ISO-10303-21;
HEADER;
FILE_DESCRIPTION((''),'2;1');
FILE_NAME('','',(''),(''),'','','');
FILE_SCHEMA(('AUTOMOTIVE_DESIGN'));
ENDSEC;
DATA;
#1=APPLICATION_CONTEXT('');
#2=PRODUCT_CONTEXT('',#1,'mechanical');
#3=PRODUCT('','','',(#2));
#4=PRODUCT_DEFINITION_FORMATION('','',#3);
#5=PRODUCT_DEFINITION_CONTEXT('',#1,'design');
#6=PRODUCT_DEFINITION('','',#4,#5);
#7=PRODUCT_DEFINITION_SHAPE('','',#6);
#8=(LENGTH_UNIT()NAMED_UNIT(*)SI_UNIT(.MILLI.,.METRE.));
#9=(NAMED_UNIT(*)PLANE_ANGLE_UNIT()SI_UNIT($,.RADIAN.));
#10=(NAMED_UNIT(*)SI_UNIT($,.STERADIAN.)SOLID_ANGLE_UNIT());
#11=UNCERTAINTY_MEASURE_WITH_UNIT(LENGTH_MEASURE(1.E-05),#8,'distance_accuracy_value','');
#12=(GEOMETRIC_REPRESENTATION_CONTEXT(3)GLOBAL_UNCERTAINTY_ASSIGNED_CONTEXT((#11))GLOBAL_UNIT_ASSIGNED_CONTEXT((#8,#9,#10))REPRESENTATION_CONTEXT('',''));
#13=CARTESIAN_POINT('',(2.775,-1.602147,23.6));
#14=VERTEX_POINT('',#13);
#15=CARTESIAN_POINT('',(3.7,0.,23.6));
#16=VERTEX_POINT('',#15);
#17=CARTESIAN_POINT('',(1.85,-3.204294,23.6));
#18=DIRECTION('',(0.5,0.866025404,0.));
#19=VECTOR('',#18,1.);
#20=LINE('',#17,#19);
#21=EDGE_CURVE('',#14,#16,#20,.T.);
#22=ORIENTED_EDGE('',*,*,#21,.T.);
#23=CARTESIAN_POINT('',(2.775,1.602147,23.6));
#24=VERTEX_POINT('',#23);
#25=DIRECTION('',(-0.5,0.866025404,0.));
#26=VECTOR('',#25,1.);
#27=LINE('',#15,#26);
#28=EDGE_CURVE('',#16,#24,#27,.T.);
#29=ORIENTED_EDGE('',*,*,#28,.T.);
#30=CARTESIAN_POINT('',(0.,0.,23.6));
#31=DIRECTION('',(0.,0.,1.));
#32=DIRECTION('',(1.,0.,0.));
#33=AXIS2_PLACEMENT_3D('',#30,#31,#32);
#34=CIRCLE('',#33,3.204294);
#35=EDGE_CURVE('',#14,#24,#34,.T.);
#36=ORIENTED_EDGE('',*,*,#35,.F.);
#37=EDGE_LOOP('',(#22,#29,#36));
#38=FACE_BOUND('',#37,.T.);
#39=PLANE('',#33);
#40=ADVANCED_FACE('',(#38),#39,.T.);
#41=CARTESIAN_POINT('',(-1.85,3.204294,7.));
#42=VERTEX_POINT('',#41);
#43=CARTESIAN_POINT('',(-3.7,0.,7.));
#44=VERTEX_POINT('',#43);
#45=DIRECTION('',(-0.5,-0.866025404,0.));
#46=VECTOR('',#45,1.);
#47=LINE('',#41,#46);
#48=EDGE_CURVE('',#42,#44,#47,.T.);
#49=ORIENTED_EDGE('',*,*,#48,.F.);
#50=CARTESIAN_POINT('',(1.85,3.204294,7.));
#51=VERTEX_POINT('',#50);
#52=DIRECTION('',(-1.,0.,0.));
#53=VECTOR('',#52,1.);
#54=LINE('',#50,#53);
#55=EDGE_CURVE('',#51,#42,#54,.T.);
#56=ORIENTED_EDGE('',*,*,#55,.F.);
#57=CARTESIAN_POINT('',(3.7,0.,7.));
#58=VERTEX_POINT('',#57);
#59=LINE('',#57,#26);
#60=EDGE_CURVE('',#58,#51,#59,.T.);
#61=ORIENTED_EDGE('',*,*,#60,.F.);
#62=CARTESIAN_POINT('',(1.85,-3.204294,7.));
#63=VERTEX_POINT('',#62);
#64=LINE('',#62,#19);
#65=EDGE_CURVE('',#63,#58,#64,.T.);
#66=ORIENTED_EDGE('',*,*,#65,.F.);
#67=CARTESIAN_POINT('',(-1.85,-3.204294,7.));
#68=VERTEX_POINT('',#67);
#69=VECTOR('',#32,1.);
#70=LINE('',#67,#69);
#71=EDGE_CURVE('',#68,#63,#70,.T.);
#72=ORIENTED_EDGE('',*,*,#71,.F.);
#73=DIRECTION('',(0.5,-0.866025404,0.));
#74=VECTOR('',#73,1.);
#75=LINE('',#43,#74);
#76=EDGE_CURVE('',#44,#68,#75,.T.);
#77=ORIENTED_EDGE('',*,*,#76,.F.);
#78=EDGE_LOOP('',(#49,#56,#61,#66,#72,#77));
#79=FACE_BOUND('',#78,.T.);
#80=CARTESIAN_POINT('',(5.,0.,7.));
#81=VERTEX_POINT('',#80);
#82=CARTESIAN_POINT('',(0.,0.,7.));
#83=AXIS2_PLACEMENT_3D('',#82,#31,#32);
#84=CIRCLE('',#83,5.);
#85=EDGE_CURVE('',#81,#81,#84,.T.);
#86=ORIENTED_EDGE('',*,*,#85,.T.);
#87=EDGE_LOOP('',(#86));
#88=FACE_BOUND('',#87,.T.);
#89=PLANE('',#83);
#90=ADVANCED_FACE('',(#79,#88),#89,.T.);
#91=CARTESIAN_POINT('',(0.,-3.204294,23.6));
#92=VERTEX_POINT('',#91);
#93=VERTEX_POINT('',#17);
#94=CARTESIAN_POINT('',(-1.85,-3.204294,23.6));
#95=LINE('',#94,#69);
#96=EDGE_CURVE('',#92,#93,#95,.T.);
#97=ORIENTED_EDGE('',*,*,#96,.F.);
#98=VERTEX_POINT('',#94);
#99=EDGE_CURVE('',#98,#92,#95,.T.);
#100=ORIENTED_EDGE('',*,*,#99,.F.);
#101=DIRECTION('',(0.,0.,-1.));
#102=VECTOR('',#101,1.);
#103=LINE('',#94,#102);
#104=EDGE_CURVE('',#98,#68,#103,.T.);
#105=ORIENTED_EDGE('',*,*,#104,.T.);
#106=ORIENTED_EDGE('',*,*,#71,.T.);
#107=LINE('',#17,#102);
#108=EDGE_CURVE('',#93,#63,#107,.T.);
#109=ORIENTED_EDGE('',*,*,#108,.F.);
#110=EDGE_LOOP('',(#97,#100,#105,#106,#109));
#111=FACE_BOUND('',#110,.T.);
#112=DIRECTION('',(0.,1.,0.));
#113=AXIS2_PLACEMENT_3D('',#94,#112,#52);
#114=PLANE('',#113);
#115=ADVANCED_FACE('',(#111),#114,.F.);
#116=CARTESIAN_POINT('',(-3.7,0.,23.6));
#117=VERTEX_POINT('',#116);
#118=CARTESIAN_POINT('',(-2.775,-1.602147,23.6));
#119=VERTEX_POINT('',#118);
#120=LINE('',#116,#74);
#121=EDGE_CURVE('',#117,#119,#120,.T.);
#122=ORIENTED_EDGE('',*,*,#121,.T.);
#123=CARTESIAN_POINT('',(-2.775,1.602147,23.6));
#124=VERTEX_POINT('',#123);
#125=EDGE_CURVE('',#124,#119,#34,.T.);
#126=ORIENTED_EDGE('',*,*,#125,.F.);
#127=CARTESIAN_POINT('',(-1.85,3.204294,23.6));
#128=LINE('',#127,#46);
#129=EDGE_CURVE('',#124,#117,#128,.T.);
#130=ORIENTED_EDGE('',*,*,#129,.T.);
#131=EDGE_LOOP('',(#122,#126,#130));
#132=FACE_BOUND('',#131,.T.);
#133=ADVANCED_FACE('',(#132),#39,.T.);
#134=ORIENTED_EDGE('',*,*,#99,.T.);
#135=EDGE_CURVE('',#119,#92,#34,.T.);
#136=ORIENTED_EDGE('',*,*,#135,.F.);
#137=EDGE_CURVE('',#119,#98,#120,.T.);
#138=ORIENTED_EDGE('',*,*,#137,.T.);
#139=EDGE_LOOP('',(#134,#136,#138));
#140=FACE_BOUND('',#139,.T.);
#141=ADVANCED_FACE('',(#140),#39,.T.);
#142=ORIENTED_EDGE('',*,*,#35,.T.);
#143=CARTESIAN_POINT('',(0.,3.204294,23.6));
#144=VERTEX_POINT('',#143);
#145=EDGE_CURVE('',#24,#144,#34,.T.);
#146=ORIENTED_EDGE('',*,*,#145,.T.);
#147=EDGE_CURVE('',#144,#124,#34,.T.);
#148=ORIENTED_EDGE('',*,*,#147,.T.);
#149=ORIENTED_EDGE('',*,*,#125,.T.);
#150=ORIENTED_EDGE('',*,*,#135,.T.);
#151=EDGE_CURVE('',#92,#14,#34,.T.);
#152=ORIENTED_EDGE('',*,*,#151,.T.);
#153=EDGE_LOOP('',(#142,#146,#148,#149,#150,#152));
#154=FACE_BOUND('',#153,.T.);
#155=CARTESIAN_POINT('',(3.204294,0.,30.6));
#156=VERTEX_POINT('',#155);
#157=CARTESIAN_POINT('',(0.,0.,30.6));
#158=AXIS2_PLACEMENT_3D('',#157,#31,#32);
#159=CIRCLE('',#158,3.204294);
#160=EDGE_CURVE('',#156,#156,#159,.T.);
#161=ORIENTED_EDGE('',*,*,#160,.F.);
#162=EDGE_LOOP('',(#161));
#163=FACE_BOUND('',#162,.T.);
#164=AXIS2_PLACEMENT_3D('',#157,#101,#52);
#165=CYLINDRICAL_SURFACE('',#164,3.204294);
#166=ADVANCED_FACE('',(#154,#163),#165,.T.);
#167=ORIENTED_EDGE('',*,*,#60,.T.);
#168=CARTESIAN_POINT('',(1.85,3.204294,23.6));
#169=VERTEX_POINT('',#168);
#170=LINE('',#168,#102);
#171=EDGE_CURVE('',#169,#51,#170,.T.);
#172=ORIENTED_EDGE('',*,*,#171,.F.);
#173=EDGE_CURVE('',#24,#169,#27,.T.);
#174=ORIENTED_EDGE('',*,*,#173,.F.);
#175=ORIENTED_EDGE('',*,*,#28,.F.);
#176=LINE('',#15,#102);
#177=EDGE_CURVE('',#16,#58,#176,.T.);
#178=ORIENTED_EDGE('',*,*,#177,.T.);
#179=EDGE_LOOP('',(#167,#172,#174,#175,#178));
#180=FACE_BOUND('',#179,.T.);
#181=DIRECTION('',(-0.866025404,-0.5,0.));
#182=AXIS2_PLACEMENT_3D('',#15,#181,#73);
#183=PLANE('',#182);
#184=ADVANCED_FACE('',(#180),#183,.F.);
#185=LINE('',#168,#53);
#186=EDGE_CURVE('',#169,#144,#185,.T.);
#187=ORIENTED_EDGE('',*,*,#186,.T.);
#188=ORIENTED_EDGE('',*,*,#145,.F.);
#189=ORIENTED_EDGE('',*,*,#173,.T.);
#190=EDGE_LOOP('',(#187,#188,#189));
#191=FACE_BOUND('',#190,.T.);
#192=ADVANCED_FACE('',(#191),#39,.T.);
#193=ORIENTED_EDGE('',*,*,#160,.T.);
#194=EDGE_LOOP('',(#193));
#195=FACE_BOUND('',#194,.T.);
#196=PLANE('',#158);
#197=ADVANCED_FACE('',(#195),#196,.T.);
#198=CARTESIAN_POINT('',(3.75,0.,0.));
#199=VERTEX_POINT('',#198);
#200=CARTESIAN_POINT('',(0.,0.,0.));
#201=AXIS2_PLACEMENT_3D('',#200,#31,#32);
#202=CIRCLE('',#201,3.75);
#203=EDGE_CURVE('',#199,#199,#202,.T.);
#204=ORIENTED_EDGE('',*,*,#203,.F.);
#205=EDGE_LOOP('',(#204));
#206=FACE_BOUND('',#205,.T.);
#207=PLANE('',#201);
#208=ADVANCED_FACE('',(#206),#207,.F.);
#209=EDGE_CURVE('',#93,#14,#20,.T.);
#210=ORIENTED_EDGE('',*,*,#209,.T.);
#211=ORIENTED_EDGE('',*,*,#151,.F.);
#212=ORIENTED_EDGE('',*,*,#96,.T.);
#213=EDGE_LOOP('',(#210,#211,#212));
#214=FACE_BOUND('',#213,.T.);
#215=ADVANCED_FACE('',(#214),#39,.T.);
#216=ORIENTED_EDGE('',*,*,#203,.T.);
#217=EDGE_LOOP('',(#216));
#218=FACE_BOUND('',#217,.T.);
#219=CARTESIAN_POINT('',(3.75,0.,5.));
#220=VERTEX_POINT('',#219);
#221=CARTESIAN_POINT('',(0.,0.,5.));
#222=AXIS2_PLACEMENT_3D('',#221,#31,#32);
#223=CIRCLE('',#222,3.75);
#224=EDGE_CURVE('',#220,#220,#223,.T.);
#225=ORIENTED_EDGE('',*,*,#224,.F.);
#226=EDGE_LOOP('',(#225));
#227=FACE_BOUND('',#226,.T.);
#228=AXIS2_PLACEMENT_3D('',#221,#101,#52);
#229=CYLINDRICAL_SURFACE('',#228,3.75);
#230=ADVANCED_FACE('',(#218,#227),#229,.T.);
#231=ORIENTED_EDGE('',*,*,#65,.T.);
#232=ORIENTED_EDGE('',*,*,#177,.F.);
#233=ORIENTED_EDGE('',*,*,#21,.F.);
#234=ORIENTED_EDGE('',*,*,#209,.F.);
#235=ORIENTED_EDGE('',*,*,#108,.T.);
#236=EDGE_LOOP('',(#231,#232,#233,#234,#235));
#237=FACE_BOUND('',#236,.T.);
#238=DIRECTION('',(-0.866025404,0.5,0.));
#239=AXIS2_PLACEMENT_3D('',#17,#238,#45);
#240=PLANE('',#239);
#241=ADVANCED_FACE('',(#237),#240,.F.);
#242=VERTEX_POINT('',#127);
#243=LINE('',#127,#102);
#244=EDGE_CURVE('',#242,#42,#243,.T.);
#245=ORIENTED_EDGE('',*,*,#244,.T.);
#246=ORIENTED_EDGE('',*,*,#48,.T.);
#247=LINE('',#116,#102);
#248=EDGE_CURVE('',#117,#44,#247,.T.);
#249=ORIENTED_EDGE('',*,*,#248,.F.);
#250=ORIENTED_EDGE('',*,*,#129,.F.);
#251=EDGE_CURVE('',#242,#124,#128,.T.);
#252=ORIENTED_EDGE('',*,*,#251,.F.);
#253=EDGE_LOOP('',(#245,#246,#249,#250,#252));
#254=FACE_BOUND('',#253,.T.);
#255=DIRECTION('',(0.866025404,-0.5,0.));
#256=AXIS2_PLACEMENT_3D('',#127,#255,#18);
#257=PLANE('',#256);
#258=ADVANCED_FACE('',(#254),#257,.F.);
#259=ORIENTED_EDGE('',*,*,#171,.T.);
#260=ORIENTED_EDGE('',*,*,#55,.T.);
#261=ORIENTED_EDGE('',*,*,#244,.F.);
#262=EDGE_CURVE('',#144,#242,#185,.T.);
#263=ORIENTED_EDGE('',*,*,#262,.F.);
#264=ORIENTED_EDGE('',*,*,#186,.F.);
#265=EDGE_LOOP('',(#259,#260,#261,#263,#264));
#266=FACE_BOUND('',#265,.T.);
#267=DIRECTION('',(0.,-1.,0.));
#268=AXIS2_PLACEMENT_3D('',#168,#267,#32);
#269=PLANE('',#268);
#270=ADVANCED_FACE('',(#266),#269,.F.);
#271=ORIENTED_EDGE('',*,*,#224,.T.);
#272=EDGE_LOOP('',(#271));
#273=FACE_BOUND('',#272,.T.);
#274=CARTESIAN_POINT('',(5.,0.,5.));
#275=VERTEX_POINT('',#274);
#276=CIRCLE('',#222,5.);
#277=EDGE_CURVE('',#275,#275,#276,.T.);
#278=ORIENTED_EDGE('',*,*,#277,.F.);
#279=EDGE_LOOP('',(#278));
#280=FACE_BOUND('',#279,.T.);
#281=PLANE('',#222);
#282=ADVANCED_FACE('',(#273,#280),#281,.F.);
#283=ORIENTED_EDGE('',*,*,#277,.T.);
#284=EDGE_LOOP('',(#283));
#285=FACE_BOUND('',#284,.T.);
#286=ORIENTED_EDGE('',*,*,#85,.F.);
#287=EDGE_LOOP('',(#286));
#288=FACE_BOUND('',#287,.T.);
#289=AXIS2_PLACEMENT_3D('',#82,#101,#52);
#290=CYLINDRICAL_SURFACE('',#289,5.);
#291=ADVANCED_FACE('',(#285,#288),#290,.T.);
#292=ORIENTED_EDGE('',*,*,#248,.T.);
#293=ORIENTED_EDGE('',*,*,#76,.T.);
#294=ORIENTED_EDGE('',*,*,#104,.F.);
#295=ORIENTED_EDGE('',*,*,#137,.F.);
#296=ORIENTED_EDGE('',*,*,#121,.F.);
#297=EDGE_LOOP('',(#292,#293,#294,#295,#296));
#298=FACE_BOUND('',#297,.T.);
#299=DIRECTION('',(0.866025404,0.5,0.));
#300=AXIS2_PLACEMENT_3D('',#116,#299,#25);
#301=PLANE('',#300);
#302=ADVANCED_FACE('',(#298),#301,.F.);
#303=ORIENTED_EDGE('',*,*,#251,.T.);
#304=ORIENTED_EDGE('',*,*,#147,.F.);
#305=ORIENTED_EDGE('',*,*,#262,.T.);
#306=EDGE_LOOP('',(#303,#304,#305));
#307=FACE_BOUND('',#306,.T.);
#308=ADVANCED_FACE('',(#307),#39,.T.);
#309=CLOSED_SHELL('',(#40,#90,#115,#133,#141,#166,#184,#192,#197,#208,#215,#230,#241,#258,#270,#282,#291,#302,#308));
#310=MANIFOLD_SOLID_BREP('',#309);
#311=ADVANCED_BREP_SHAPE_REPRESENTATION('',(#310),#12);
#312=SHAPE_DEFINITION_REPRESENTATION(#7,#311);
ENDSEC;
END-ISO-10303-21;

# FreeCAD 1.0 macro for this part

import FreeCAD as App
import Part
import Sketcher

V = App.Vector
Q = App.Units.Quantity


def add_polygon(sketch, points):
    """Adds a closed chain of lines whose ends are joined by coincident constraints."""
    first, n = sketch.GeometryCount, len(points)
    for a, b in zip(points, points[1:] + points[:1]):
        sketch.addGeometry(Part.LineSegment(App.Vector(*a, 0), App.Vector(*b, 0)), False)
    for i in range(n):
        sketch.addConstraint(Sketcher.Constraint("Coincident", first + i, 2, first + (i + 1) % n, 1))

doc = App.newDocument("Part")
body = doc.addObject("PartDesign::Body", "Body")

# Sketch on XY plane
sketch1 = doc.addObject("Sketcher::SketchObject", "Sketch")
body.addObject(sketch1)
sketch1.AttachmentSupport = (doc.XY_Plane, [""])
sketch1.MapMode = "FlatFace"
sketch1.addGeometry(Part.Circle(V(0, 0, 0), V(0, 0, 1), 3.8), False)
sketch1.addConstraint(Sketcher.Constraint("Coincident", 0, 3, -1, 1))
sketch1.addConstraint(Sketcher.Constraint("Diameter", 0, Q("7.5 mm")))
pad1 = doc.addObject("PartDesign::Pad", "Pad")
body.addObject(pad1)
pad1.Profile = sketch1
pad1.Length = 5

# Sketch on XY plane
sketch2 = doc.addObject("Sketcher::SketchObject", "Sketch001")
body.addObject(sketch2)
sketch2.AttachmentSupport = (doc.XY_Plane, [""])
sketch2.MapMode = "FlatFace"
sketch2.AttachmentOffset = App.Placement(V(0, 0, 5), App.Rotation())
sketch2.addGeometry(Part.Circle(V(0, 0, 0), V(0, 0, 1), 5), False)
sketch2.addConstraint(Sketcher.Constraint("Coincident", 0, 3, -1, 1))
sketch2.addConstraint(Sketcher.Constraint("Diameter", 0, Q("10 mm")))
pad2 = doc.addObject("PartDesign::Pad", "Pad001")
body.addObject(pad2)
pad2.Profile = sketch2
pad2.Length = 2

# Sketch on XY plane
sketch3 = doc.addObject("Sketcher::SketchObject", "Sketch002")
body.addObject(sketch3)
sketch3.AttachmentSupport = (doc.XY_Plane, [""])
sketch3.MapMode = "FlatFace"
sketch3.AttachmentOffset = App.Placement(V(0, 0, 7), App.Rotation())
add_polygon(sketch3, [(3.7, 0), (1.9, 3.2), (-1.9, 3.2), (-3.7, 0), (-1.9, -3.2), (1.9, -3.2)])  # lines 0-5
sketch3.addConstraint(Sketcher.Constraint("Horizontal", 1))
sketch3.addConstraint(Sketcher.Constraint("Horizontal", 4))
sketch3.addConstraint(Sketcher.Constraint("Symmetric", 0, 2, 3, 2, -1, 1))
sketch3.addConstraint(Sketcher.Constraint("Symmetric", 2, 2, 5, 2, -1, 1))
sketch3.addConstraint(Sketcher.Constraint("PointOnObject", 2, 2, -1))
sketch3.addConstraint(Sketcher.Constraint("Parallel", 2, 5))
sketch3.addConstraint(Sketcher.Constraint("Vertical", 1, 2, 3, 2))
sketch3.addConstraint(Sketcher.Constraint("Angle", 0, Q("120 deg")))
sketch3.addConstraint(Sketcher.Constraint("DistanceX", 1, 2, 1, 1, Q("3.7 mm")))
sketch3.addConstraint(Sketcher.Constraint("Distance", 0, Q("3.7 mm")))
pad3 = doc.addObject("PartDesign::Pad", "Pad002")
body.addObject(pad3)
pad3.Profile = sketch3
pad3.Length = 16.6

# Sketch on XY plane
sketch4 = doc.addObject("Sketcher::SketchObject", "Sketch003")
body.addObject(sketch4)
sketch4.AttachmentSupport = (doc.XY_Plane, [""])
sketch4.MapMode = "FlatFace"
sketch4.AttachmentOffset = App.Placement(V(0, 0, 23.6), App.Rotation())
sketch4.addGeometry(Part.Circle(V(0, 0, 0), V(0, 0, 1), 3.2), False)
sketch4.addConstraint(Sketcher.Constraint("Coincident", 0, 3, -1, 1))
sketch4.addConstraint(Sketcher.Constraint("Diameter", 0, Q("6.408588 mm")))
pad4 = doc.addObject("PartDesign::Pad", "Pad003")
body.addObject(pad4)
pad4.Profile = sketch4
pad4.Length = 7

doc.recompute()
